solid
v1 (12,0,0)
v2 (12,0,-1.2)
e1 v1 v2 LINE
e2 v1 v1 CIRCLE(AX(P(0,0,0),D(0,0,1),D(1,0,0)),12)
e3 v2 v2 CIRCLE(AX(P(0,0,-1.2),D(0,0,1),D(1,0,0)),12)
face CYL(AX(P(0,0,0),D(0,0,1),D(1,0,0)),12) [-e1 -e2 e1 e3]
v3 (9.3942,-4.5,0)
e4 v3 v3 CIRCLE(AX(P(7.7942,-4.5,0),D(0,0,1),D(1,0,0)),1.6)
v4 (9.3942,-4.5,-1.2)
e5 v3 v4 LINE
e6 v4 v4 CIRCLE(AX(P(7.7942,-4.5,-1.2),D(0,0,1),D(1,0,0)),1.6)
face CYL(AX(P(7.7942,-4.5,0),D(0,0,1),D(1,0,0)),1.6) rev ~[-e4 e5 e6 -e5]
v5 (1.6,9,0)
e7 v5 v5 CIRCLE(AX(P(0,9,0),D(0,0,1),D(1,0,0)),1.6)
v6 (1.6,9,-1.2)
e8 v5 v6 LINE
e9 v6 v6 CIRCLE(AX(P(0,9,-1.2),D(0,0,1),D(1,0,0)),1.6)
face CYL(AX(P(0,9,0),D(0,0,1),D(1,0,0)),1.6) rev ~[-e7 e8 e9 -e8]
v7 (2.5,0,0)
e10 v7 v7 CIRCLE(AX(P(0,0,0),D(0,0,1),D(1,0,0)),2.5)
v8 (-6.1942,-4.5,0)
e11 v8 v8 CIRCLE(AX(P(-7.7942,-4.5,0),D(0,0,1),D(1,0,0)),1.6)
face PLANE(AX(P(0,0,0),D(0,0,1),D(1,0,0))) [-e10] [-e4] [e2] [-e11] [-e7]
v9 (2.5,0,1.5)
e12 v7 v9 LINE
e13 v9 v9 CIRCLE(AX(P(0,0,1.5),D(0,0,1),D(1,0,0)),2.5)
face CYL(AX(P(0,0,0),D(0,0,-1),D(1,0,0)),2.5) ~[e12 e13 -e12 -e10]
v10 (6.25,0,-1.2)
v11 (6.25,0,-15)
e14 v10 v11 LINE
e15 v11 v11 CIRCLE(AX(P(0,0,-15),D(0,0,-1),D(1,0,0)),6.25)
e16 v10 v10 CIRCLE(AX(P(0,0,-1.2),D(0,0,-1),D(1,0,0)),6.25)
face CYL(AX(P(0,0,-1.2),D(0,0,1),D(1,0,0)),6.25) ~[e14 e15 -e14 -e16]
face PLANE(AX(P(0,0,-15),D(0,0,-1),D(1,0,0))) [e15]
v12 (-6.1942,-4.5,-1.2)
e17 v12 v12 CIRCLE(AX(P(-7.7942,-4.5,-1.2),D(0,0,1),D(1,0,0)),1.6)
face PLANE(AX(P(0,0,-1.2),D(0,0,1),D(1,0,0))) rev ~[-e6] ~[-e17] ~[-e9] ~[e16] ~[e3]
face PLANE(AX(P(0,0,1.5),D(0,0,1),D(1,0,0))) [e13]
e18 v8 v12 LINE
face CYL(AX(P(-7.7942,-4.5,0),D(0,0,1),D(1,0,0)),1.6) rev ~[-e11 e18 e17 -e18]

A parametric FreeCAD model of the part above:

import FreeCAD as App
import Part
import Sketcher
Q = App.Units.Quantity

doc = App.newDocument("Part")
body = doc.addObject("PartDesign::Body", "Body")

# Sketch on XY plane
sketch1 = body.newObject("Sketcher::SketchObject", "Sketch")
sketch1.AttachmentSupport = (doc.getObject("XY_Plane"), [""])
sketch1.MapMode = "FlatFace"
sketch1.addGeometry([
    Part.Circle(App.Vector(0, 0, 0), App.Vector(0, 0, 1), 12),
    Part.Circle(App.Vector(-7.7942, -4.5, 0), App.Vector(0, 0, 1), 1.6),
    Part.Circle(App.Vector(7.7942, -4.5, 0), App.Vector(0, 0, 1), 1.6),
    Part.Circle(App.Vector(0, 9, 0), App.Vector(0, 0, 1), 1.6),
], False)
sketch1.addConstraint([
    Sketcher.Constraint("Coincident", 0, 3, -1, 1),
    Sketcher.Constraint("Equal", 1, 2),
    Sketcher.Constraint("Equal", 2, 3),
    Sketcher.Constraint("Symmetric", 1, 3, 2, 3, -2),
    Sketcher.Constraint("PointOnObject", 3, 3, -2),
    Sketcher.Constraint("Diameter", 0, Q("24 mm")),
    Sketcher.Constraint("Diameter", 1, Q("3.2 mm")),
    Sketcher.Constraint("DistanceY", -1, 1, 3, 3, Q("9 mm")),
    Sketcher.Constraint("DistanceY", 1, 3, -1, 1, Q("4.5 mm")),
    Sketcher.Constraint("DistanceX", 1, 3, -1, 1, Q("7.7942 mm")),
])
pad1 = body.newObject("PartDesign::Pad", "Pad")
pad1.Profile = sketch1
pad1.Length = 1.2
pad1.Reversed = True

# Sketch on XY plane
sketch2 = body.newObject("Sketcher::SketchObject", "Sketch001")
sketch2.AttachmentSupport = (doc.getObject("XY_Plane"), [""])
sketch2.MapMode = "FlatFace"
sketch2.addGeometry(Part.Circle(App.Vector(0, 0, 0), App.Vector(0, 0, 1), 2.5), False)
sketch2.addConstraint([
    Sketcher.Constraint("Coincident", 0, 3, -1, 1),
    Sketcher.Constraint("Diameter", 0, Q("5 mm")),
])
pad2 = body.newObject("PartDesign::Pad", "Pad001")
pad2.Profile = sketch2
pad2.Length = 1.5

# Sketch on XY plane
sketch3 = body.newObject("Sketcher::SketchObject", "Sketch002")
sketch3.AttachmentSupport = (doc.getObject("XY_Plane"), [""])
sketch3.MapMode = "FlatFace"
sketch3.AttachmentOffset = App.Placement(App.Vector(0, 0, -1.2), App.Rotation())
sketch3.addGeometry(Part.Circle(App.Vector(0, 0, 0), App.Vector(0, 0, 1), 6.25), False)
sketch3.addConstraint([
    Sketcher.Constraint("Coincident", 0, 3, -1, 1),
    Sketcher.Constraint("Diameter", 0, Q("12.5 mm")),
])
pad3 = body.newObject("PartDesign::Pad", "Pad002")
pad3.Profile = sketch3
pad3.Length = 13.8
pad3.Reversed = True

doc.recompute()
